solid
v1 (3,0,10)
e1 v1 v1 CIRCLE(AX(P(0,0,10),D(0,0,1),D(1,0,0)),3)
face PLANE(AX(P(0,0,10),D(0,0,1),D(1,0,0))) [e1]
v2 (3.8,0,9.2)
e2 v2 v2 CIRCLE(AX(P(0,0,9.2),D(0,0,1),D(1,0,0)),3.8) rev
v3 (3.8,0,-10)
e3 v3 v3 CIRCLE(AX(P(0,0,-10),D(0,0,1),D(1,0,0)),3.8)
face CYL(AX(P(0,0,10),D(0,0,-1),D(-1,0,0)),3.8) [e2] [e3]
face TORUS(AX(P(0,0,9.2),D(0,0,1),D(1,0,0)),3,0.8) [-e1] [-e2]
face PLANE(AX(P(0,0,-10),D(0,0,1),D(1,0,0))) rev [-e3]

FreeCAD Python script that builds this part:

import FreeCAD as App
import Part
import Sketcher
from FreeCAD import Vector


def edges_at(feature, points):
    """Names of the edges that pass closest to the given points."""
    edges = feature.Shape.Edges
    near = lambda p: min(range(len(edges)), key=lambda i: edges[i].distToShape(Part.Vertex(*p))[0])
    return sorted({f"Edge{near(p) + 1}" for p in points})

doc = App.newDocument("Part")
body = doc.addObject("PartDesign::Body", "Body")

sketch1 = body.newObject("Sketcher::SketchObject", "Sketch")
sketch1.AttachmentSupport = (doc.getObject("XY_Plane"), [""])
sketch1.MapMode = "FlatFace"
sketch1.addGeometry(Part.Circle(Vector(0, 0, 0), Vector(0, 0, 1), 3.8), False)
sketch1.addConstraint(Sketcher.Constraint("Coincident", 0, 3, -1, 1))
sketch1.addConstraint(Sketcher.Constraint("Diameter", 0, 7.6))
pad1 = body.newObject("PartDesign::Pad", "Pad")
pad1.Profile = sketch1
pad1.Length = 20
pad1.Midplane = True
doc.recompute()

fillet = body.newObject("PartDesign::Fillet", "Fillet")
fillet.Base = (pad1, edges_at(pad1, [(-3.8, 0, 10)]))
fillet.Radius = 0.8

doc.recompute()
